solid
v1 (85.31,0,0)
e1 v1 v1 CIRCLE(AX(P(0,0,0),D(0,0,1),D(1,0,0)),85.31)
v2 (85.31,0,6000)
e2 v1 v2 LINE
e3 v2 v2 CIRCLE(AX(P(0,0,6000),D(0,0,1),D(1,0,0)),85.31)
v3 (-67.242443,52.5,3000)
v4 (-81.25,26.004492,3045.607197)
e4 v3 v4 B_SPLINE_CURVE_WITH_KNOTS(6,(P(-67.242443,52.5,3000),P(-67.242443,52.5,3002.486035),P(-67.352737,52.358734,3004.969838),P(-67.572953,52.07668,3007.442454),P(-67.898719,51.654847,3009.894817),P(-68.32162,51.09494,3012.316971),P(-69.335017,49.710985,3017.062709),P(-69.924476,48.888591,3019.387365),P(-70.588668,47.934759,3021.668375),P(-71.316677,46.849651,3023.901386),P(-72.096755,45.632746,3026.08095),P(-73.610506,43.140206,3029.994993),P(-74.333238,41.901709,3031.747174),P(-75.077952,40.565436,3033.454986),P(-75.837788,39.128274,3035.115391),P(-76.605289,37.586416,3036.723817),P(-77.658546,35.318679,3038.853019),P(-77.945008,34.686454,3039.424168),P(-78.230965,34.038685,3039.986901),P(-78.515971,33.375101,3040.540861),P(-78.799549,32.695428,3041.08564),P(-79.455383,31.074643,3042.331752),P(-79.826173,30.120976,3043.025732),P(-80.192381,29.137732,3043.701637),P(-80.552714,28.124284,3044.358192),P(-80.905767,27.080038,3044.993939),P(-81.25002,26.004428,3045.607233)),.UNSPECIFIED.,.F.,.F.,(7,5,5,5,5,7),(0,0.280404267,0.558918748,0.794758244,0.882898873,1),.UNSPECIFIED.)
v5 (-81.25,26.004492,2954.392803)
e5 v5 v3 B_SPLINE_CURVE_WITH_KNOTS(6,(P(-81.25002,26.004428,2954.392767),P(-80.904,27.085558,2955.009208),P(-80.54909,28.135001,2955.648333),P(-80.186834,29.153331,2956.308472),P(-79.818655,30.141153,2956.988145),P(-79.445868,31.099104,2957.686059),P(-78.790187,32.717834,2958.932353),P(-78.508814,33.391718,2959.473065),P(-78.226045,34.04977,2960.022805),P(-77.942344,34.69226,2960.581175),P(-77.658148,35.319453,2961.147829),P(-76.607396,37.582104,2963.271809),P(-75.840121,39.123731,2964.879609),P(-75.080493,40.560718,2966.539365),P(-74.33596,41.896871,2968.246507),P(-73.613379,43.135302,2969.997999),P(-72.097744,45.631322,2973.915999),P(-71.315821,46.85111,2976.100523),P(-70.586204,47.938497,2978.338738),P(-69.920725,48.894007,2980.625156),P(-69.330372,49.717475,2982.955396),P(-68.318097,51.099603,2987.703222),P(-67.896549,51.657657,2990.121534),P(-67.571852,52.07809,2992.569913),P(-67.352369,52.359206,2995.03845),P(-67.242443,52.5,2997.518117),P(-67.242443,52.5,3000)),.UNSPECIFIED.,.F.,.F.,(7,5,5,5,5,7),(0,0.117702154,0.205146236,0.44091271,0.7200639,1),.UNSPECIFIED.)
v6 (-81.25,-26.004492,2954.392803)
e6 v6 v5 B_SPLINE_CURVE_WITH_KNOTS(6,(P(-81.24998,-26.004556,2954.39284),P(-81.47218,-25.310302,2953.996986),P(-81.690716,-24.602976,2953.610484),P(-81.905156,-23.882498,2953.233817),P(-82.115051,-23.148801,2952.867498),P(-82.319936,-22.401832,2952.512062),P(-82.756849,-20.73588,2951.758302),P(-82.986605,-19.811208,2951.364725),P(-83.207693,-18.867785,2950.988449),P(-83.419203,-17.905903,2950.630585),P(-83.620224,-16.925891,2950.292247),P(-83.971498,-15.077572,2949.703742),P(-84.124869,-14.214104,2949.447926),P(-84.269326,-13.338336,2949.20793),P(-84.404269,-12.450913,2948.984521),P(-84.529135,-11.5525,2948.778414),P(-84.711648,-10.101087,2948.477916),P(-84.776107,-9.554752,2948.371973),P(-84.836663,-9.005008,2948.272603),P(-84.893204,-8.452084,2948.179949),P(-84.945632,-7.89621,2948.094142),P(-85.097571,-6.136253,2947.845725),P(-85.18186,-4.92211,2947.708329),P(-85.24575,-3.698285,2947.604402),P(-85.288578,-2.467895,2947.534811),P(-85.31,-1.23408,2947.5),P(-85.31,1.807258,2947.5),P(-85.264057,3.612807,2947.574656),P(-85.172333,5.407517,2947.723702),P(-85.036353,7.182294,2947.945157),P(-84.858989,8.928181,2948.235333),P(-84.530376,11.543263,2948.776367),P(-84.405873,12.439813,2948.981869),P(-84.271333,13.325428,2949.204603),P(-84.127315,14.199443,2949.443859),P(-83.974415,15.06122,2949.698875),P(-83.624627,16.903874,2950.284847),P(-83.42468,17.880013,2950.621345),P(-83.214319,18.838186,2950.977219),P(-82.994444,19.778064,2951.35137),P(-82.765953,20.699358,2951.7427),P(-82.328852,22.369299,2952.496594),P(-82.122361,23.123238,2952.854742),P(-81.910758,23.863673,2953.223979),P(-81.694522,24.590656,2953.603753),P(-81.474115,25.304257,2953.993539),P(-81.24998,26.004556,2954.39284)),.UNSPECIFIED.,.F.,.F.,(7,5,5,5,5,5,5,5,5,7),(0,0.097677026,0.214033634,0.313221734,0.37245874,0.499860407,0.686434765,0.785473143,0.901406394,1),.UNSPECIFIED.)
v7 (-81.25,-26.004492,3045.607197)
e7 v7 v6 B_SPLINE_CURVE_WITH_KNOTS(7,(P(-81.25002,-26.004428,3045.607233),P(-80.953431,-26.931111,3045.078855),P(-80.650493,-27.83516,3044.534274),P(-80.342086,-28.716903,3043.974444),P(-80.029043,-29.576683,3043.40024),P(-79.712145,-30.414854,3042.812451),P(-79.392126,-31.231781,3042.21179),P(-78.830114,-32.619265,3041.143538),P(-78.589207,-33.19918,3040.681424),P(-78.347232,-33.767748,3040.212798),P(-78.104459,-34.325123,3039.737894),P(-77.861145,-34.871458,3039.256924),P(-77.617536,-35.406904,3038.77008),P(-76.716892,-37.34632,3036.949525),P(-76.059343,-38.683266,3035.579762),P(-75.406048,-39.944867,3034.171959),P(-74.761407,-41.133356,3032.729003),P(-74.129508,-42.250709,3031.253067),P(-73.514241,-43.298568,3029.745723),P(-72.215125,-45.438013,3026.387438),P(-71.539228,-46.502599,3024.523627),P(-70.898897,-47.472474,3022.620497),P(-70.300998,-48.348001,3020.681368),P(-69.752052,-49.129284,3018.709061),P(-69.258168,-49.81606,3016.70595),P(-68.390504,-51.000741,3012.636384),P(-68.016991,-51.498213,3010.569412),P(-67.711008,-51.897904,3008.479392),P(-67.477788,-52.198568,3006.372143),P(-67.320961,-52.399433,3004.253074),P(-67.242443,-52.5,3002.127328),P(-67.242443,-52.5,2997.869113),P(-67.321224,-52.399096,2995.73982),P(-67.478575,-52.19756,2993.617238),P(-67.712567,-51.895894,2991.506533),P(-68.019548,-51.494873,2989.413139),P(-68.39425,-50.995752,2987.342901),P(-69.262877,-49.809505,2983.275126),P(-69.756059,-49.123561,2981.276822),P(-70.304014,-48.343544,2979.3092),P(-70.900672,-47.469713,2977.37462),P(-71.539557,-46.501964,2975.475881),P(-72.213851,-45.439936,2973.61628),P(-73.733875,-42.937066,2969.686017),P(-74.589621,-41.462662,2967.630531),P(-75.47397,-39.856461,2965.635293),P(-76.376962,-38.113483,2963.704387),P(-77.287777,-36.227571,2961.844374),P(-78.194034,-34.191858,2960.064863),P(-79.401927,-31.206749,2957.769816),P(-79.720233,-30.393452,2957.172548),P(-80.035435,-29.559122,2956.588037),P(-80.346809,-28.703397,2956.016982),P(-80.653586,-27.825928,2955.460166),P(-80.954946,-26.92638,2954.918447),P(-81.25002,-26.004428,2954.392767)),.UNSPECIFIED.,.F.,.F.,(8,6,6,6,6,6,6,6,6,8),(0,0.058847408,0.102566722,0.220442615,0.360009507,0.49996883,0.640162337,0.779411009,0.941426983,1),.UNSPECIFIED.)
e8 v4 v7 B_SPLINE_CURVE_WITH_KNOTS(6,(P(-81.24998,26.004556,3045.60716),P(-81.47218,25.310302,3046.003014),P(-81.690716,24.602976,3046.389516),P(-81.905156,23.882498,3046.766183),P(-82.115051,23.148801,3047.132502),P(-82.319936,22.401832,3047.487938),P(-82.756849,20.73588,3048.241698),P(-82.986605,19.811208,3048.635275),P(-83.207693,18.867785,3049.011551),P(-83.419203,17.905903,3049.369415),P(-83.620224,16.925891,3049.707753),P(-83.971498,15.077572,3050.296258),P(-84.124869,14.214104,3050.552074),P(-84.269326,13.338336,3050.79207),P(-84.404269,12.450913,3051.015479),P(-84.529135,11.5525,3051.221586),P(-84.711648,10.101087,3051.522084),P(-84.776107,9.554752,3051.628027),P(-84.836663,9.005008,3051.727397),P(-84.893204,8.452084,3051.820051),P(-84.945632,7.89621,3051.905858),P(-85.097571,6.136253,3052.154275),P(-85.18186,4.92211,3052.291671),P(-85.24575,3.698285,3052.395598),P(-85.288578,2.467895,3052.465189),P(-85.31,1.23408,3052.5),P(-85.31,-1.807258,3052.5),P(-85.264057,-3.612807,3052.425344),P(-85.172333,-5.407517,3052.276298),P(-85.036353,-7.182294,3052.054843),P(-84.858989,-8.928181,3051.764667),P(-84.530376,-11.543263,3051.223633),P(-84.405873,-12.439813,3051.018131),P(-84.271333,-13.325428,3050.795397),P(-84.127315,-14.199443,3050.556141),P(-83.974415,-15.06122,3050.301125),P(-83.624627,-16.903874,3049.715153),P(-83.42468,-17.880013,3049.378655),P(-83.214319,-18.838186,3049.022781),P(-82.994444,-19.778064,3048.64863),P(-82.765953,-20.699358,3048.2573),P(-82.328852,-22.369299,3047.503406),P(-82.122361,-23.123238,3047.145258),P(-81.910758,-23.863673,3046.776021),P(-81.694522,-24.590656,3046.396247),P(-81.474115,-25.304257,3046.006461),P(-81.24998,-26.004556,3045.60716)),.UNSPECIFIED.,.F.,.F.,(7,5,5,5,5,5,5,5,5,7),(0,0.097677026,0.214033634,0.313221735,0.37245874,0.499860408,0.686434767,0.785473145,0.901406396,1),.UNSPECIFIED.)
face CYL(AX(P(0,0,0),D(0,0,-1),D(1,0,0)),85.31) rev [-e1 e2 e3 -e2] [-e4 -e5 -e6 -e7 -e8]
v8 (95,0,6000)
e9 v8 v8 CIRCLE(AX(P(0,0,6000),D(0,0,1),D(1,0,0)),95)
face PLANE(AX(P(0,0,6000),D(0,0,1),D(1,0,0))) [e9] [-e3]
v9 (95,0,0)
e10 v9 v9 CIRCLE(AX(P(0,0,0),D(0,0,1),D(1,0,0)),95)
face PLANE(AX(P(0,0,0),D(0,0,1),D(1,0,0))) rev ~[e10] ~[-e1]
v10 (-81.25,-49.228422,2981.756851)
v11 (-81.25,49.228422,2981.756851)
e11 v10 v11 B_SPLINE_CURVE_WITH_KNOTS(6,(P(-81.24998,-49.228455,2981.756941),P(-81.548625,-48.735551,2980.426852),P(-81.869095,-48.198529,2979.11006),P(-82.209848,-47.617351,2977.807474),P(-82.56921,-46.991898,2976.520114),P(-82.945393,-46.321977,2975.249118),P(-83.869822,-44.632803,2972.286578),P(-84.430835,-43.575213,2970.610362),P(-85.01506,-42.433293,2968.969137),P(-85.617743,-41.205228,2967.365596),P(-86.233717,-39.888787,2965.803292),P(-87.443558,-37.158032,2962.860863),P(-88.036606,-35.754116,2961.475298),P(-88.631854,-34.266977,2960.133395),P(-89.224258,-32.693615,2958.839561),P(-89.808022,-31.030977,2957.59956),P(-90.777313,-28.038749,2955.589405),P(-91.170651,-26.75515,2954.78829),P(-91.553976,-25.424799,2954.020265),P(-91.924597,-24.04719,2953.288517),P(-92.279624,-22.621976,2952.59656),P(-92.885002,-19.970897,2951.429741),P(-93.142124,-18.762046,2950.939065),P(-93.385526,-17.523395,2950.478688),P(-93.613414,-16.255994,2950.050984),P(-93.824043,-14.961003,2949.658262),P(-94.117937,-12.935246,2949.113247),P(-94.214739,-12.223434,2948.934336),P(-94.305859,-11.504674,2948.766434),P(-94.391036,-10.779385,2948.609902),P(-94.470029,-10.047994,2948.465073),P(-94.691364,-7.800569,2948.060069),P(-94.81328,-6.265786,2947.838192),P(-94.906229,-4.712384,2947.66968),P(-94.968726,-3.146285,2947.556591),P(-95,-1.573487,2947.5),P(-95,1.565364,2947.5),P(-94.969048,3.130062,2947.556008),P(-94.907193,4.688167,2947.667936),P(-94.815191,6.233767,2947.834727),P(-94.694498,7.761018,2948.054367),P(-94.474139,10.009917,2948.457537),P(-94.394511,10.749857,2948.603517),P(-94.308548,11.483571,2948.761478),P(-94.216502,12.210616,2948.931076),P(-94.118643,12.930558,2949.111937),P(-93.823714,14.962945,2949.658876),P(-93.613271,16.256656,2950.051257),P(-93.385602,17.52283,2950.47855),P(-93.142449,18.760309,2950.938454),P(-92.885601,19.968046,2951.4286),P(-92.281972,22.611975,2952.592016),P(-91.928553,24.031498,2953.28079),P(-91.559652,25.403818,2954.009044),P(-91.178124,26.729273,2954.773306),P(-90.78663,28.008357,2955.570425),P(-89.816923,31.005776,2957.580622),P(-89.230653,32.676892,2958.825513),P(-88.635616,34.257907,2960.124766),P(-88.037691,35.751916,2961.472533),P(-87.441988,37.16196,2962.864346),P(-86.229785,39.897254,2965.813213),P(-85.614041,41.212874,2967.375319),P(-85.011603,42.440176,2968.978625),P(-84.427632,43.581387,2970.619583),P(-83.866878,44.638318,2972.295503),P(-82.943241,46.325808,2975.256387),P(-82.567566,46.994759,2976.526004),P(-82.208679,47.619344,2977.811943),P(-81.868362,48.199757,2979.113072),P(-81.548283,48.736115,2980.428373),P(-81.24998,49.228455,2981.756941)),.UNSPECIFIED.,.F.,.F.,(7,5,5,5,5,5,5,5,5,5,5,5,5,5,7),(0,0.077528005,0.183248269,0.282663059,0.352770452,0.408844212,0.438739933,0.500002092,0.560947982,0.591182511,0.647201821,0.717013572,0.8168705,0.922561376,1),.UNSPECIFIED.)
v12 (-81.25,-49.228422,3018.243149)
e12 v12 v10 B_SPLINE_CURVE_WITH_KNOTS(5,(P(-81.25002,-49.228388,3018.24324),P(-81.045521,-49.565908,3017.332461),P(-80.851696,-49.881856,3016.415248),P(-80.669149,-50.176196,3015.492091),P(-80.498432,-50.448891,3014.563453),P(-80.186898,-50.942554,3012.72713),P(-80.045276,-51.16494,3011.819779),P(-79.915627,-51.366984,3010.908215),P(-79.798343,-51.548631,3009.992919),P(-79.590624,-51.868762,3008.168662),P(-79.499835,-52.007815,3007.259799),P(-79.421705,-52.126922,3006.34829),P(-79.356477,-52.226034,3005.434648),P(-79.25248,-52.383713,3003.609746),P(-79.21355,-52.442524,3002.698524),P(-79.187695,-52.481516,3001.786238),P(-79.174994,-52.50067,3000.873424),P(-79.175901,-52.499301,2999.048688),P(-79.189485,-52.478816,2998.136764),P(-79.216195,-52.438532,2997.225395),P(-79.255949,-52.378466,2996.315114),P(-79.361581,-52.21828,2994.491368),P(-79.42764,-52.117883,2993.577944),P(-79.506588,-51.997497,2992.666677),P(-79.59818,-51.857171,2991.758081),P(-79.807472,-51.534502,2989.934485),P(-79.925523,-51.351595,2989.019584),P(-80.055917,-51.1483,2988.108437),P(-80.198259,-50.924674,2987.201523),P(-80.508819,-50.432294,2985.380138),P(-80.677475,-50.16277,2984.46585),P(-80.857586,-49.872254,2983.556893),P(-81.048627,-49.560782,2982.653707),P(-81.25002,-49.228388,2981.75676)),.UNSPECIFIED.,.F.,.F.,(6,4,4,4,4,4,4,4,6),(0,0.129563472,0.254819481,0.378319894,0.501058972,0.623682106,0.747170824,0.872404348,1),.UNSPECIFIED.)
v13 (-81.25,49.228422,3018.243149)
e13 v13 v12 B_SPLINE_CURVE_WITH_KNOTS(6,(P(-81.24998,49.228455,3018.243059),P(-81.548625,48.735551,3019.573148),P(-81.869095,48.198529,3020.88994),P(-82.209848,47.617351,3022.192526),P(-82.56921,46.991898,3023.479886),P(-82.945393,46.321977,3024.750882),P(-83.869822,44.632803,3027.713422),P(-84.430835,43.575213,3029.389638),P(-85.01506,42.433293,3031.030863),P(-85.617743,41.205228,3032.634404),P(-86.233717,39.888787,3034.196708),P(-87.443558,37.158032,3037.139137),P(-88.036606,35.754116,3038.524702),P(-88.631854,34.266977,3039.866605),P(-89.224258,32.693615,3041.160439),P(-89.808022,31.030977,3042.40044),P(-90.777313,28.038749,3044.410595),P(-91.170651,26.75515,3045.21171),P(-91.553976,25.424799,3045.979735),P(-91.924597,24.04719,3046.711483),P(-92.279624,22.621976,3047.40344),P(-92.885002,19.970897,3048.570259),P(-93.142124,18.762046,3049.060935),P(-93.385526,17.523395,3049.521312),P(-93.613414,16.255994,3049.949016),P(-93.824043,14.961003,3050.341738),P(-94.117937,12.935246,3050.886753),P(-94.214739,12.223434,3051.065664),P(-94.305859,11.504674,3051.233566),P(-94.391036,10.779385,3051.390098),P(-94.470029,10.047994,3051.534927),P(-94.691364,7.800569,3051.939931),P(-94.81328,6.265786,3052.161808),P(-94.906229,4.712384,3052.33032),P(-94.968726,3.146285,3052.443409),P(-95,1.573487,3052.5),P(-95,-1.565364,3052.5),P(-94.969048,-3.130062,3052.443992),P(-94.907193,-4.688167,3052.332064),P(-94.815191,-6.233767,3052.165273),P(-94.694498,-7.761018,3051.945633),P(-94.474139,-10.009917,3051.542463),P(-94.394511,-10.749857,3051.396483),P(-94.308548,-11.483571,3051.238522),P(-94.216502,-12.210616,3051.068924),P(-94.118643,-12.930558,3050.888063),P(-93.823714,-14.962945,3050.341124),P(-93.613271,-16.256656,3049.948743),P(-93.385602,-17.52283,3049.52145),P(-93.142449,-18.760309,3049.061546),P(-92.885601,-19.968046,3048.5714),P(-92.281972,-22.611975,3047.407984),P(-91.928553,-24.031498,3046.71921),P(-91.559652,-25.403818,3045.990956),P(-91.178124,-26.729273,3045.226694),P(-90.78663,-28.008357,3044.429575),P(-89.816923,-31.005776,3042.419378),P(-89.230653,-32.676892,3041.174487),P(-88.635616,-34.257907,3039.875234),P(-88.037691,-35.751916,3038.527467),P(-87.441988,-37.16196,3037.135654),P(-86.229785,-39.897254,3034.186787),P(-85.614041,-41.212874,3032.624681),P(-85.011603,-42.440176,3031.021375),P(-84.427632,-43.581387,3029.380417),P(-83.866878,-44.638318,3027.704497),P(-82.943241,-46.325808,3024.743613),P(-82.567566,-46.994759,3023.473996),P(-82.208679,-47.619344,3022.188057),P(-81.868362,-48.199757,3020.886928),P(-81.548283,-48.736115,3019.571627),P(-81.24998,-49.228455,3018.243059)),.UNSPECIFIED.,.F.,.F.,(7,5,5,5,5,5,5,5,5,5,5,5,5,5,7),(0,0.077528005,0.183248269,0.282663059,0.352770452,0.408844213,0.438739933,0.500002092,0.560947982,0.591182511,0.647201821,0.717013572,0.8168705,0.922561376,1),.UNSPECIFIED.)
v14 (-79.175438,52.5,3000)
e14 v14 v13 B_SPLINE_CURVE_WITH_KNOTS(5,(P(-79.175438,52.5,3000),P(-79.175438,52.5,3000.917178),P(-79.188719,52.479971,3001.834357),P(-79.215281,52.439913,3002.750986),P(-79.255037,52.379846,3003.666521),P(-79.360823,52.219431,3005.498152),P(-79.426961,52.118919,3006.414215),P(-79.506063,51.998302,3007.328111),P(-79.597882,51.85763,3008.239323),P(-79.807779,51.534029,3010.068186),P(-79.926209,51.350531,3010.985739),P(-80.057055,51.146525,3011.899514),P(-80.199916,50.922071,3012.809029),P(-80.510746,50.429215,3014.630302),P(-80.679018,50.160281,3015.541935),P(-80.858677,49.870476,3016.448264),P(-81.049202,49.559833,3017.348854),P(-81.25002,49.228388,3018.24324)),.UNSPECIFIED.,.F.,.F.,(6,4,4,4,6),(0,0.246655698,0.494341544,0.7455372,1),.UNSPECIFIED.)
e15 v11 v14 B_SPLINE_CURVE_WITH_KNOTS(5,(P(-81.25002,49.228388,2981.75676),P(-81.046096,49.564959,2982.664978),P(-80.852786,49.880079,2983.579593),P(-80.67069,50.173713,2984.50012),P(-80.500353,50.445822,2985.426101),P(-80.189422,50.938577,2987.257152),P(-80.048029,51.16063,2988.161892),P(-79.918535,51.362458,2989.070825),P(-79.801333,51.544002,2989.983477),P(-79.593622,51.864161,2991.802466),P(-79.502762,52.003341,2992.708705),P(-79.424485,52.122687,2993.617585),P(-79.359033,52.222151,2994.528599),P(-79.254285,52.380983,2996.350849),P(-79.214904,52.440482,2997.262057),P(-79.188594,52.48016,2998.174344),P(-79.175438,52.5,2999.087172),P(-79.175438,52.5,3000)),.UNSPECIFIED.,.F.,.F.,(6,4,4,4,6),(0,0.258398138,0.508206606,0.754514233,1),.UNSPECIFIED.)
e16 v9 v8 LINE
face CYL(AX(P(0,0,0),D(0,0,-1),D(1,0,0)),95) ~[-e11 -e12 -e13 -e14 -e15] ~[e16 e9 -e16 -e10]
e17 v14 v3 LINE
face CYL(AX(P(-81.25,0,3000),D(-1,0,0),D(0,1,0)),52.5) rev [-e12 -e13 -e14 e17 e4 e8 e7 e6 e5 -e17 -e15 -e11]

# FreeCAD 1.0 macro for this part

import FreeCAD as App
import Part
import Sketcher

V = App.Vector
Q = App.Units.Quantity

doc = App.newDocument("Part")
body = doc.addObject("PartDesign::Body", "Body")

# Sketch on XY plane
sketch1 = body.newObject("Sketcher::SketchObject", "Sketch")
sketch1.AttachmentSupport = (doc.getObject("XY_Plane"), [""])
sketch1.MapMode = "FlatFace"
sketch1.addGeometry(Part.Circle(V(0, 0, 0), V(0, 0, 1), 95), False)
sketch1.addGeometry(Part.Circle(V(0, 0, 0), V(0, 0, 1), 85), False)
sketch1.addConstraint(Sketcher.Constraint("Coincident", 0, 3, -1, 1))
sketch1.addConstraint(Sketcher.Constraint("Coincident", 1, 3, -1, 1))
sketch1.addConstraint(Sketcher.Constraint("Diameter", 0, Q("190 mm")))
sketch1.addConstraint(Sketcher.Constraint("Diameter", 1, Q("170.62 mm")))
pad1 = body.newObject("PartDesign::Pad", "Pad")
pad1.Profile = sketch1
pad1.Length = 6000

# Sketch on YZ plane
sketch2 = body.newObject("Sketcher::SketchObject", "Sketch001")
sketch2.AttachmentSupport = (doc.getObject("YZ_Plane"), [""])
sketch2.MapMode = "FlatFace"
sketch2.AttachmentOffset = App.Placement(V(0, 0, -81.25), App.Rotation())
sketch2.addGeometry(Part.Circle(V(0, 3000, 0), V(0, 0, 1), 52), False)
sketch2.addConstraint(Sketcher.Constraint("PointOnObject", 0, 3, -2))
sketch2.addConstraint(Sketcher.Constraint("Diameter", 0, Q("105 mm")))
sketch2.addConstraint(Sketcher.Constraint("DistanceY", -1, 1, 0, 3, Q("3000 mm")))
pocket1 = body.newObject("PartDesign::Pocket", "Pocket")
pocket1.Profile = sketch2
pocket1.Length = 60
pocket1.Midplane = True

doc.recompute()
